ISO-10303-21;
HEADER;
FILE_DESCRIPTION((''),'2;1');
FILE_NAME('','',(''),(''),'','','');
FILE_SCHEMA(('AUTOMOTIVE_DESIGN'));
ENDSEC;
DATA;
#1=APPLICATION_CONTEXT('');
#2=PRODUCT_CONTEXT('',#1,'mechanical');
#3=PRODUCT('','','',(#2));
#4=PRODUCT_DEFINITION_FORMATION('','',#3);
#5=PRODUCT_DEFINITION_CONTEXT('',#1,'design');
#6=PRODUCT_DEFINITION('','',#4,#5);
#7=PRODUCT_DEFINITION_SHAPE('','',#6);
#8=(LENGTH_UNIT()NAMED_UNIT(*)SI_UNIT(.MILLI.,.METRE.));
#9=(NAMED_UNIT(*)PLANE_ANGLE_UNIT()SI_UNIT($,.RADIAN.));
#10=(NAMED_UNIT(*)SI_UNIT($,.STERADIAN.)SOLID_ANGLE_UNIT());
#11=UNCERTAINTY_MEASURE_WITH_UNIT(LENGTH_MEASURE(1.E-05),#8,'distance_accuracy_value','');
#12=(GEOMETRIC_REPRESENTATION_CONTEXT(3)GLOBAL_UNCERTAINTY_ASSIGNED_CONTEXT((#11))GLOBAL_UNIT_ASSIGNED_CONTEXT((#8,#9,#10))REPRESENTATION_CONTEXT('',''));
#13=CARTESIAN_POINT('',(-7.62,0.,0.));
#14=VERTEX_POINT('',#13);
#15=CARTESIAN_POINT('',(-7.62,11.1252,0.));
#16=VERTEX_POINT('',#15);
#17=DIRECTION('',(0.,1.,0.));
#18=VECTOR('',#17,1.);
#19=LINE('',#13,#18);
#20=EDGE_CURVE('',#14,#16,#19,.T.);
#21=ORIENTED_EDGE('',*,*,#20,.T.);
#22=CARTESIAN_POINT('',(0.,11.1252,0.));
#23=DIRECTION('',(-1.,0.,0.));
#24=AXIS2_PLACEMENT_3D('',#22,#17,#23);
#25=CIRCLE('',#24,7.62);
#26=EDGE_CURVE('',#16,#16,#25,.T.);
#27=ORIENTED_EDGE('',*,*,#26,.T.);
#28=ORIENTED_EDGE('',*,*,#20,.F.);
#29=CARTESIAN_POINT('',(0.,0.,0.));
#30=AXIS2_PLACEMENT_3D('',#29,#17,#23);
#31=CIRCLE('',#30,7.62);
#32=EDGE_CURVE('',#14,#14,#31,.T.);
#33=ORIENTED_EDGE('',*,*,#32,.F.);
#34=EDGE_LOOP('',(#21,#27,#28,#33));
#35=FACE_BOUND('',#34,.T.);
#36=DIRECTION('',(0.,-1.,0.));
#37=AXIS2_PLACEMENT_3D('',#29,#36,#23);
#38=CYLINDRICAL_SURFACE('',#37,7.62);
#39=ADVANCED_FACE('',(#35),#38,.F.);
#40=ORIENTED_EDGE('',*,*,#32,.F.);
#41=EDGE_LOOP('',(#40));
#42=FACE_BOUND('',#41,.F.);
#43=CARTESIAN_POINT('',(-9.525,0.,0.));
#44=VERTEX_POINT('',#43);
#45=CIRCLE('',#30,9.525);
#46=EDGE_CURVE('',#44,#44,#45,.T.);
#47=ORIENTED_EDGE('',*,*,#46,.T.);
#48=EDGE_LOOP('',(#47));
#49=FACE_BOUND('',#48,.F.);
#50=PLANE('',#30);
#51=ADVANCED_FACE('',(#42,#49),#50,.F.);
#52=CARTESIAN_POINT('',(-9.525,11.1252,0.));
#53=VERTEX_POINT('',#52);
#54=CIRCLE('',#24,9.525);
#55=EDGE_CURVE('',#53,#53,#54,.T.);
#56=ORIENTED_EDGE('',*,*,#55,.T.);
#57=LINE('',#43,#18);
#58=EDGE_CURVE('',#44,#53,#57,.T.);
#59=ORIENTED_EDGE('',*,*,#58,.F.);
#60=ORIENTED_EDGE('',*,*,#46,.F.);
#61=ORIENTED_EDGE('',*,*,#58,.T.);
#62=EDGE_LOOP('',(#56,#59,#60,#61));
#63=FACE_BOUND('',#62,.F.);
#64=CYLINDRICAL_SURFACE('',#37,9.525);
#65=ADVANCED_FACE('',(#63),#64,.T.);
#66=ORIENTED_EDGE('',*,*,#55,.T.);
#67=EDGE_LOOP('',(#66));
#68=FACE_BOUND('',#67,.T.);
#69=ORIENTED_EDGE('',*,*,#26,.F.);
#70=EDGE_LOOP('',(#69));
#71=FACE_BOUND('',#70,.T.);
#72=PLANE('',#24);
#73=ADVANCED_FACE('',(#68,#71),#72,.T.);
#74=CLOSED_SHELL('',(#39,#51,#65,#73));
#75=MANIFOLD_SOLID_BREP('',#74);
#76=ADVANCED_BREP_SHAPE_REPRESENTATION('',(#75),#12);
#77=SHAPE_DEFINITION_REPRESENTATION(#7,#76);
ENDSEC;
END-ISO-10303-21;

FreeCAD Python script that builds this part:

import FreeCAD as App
import Part
import Sketcher
Q = App.Units.Quantity

doc = App.newDocument("Part")
params = doc.addObject("Spreadsheet::Sheet", "Params")
for row, (alias, value) in enumerate([
    ("sketch1_diameter", "0.6 in"),
    ("sketch1_diameter2", "0.75 in"),
    ("pad1_length", "0.438 in"),
], start=1):
    params.set(f"A{row}", alias)
    params.set(f"B{row}", "=" + value)
    params.setAlias(f"B{row}", alias)

body = doc.addObject("PartDesign::Body", "Body")

# Sketch on XZ plane
sketch1 = doc.addObject("Sketcher::SketchObject", "Sketch")
body.addObject(sketch1)
sketch1.AttachmentSupport = (doc.XZ_Plane, [""])
sketch1.MapMode = "FlatFace"
sketch1.addGeometry([
    Part.Circle(App.Vector(0, 0, 0), App.Vector(0, 0, 1), 10),
    Part.Circle(App.Vector(0, 0, 0), App.Vector(0, 0, 1), 8),
], False)
sketch1.addConstraint([
    Sketcher.Constraint("Coincident", 0, 3, -1, 1),
    Sketcher.Constraint("Coincident", 1, 3, -1, 1),
    Sketcher.Constraint("Diameter", 1, Q("0.6 in")),
    Sketcher.Constraint("Diameter", 0, Q("0.75 in")),
])
sketch1.setExpression("Constraints[2]", "Params.sketch1_diameter")
sketch1.setExpression("Constraints[3]", "Params.sketch1_diameter2")
pad1 = doc.addObject("PartDesign::Pad", "Pad")
body.addObject(pad1)
pad1.Profile = sketch1
pad1.setExpression("Length", "Params.pad1_length")
pad1.Reversed = True

doc.recompute()
